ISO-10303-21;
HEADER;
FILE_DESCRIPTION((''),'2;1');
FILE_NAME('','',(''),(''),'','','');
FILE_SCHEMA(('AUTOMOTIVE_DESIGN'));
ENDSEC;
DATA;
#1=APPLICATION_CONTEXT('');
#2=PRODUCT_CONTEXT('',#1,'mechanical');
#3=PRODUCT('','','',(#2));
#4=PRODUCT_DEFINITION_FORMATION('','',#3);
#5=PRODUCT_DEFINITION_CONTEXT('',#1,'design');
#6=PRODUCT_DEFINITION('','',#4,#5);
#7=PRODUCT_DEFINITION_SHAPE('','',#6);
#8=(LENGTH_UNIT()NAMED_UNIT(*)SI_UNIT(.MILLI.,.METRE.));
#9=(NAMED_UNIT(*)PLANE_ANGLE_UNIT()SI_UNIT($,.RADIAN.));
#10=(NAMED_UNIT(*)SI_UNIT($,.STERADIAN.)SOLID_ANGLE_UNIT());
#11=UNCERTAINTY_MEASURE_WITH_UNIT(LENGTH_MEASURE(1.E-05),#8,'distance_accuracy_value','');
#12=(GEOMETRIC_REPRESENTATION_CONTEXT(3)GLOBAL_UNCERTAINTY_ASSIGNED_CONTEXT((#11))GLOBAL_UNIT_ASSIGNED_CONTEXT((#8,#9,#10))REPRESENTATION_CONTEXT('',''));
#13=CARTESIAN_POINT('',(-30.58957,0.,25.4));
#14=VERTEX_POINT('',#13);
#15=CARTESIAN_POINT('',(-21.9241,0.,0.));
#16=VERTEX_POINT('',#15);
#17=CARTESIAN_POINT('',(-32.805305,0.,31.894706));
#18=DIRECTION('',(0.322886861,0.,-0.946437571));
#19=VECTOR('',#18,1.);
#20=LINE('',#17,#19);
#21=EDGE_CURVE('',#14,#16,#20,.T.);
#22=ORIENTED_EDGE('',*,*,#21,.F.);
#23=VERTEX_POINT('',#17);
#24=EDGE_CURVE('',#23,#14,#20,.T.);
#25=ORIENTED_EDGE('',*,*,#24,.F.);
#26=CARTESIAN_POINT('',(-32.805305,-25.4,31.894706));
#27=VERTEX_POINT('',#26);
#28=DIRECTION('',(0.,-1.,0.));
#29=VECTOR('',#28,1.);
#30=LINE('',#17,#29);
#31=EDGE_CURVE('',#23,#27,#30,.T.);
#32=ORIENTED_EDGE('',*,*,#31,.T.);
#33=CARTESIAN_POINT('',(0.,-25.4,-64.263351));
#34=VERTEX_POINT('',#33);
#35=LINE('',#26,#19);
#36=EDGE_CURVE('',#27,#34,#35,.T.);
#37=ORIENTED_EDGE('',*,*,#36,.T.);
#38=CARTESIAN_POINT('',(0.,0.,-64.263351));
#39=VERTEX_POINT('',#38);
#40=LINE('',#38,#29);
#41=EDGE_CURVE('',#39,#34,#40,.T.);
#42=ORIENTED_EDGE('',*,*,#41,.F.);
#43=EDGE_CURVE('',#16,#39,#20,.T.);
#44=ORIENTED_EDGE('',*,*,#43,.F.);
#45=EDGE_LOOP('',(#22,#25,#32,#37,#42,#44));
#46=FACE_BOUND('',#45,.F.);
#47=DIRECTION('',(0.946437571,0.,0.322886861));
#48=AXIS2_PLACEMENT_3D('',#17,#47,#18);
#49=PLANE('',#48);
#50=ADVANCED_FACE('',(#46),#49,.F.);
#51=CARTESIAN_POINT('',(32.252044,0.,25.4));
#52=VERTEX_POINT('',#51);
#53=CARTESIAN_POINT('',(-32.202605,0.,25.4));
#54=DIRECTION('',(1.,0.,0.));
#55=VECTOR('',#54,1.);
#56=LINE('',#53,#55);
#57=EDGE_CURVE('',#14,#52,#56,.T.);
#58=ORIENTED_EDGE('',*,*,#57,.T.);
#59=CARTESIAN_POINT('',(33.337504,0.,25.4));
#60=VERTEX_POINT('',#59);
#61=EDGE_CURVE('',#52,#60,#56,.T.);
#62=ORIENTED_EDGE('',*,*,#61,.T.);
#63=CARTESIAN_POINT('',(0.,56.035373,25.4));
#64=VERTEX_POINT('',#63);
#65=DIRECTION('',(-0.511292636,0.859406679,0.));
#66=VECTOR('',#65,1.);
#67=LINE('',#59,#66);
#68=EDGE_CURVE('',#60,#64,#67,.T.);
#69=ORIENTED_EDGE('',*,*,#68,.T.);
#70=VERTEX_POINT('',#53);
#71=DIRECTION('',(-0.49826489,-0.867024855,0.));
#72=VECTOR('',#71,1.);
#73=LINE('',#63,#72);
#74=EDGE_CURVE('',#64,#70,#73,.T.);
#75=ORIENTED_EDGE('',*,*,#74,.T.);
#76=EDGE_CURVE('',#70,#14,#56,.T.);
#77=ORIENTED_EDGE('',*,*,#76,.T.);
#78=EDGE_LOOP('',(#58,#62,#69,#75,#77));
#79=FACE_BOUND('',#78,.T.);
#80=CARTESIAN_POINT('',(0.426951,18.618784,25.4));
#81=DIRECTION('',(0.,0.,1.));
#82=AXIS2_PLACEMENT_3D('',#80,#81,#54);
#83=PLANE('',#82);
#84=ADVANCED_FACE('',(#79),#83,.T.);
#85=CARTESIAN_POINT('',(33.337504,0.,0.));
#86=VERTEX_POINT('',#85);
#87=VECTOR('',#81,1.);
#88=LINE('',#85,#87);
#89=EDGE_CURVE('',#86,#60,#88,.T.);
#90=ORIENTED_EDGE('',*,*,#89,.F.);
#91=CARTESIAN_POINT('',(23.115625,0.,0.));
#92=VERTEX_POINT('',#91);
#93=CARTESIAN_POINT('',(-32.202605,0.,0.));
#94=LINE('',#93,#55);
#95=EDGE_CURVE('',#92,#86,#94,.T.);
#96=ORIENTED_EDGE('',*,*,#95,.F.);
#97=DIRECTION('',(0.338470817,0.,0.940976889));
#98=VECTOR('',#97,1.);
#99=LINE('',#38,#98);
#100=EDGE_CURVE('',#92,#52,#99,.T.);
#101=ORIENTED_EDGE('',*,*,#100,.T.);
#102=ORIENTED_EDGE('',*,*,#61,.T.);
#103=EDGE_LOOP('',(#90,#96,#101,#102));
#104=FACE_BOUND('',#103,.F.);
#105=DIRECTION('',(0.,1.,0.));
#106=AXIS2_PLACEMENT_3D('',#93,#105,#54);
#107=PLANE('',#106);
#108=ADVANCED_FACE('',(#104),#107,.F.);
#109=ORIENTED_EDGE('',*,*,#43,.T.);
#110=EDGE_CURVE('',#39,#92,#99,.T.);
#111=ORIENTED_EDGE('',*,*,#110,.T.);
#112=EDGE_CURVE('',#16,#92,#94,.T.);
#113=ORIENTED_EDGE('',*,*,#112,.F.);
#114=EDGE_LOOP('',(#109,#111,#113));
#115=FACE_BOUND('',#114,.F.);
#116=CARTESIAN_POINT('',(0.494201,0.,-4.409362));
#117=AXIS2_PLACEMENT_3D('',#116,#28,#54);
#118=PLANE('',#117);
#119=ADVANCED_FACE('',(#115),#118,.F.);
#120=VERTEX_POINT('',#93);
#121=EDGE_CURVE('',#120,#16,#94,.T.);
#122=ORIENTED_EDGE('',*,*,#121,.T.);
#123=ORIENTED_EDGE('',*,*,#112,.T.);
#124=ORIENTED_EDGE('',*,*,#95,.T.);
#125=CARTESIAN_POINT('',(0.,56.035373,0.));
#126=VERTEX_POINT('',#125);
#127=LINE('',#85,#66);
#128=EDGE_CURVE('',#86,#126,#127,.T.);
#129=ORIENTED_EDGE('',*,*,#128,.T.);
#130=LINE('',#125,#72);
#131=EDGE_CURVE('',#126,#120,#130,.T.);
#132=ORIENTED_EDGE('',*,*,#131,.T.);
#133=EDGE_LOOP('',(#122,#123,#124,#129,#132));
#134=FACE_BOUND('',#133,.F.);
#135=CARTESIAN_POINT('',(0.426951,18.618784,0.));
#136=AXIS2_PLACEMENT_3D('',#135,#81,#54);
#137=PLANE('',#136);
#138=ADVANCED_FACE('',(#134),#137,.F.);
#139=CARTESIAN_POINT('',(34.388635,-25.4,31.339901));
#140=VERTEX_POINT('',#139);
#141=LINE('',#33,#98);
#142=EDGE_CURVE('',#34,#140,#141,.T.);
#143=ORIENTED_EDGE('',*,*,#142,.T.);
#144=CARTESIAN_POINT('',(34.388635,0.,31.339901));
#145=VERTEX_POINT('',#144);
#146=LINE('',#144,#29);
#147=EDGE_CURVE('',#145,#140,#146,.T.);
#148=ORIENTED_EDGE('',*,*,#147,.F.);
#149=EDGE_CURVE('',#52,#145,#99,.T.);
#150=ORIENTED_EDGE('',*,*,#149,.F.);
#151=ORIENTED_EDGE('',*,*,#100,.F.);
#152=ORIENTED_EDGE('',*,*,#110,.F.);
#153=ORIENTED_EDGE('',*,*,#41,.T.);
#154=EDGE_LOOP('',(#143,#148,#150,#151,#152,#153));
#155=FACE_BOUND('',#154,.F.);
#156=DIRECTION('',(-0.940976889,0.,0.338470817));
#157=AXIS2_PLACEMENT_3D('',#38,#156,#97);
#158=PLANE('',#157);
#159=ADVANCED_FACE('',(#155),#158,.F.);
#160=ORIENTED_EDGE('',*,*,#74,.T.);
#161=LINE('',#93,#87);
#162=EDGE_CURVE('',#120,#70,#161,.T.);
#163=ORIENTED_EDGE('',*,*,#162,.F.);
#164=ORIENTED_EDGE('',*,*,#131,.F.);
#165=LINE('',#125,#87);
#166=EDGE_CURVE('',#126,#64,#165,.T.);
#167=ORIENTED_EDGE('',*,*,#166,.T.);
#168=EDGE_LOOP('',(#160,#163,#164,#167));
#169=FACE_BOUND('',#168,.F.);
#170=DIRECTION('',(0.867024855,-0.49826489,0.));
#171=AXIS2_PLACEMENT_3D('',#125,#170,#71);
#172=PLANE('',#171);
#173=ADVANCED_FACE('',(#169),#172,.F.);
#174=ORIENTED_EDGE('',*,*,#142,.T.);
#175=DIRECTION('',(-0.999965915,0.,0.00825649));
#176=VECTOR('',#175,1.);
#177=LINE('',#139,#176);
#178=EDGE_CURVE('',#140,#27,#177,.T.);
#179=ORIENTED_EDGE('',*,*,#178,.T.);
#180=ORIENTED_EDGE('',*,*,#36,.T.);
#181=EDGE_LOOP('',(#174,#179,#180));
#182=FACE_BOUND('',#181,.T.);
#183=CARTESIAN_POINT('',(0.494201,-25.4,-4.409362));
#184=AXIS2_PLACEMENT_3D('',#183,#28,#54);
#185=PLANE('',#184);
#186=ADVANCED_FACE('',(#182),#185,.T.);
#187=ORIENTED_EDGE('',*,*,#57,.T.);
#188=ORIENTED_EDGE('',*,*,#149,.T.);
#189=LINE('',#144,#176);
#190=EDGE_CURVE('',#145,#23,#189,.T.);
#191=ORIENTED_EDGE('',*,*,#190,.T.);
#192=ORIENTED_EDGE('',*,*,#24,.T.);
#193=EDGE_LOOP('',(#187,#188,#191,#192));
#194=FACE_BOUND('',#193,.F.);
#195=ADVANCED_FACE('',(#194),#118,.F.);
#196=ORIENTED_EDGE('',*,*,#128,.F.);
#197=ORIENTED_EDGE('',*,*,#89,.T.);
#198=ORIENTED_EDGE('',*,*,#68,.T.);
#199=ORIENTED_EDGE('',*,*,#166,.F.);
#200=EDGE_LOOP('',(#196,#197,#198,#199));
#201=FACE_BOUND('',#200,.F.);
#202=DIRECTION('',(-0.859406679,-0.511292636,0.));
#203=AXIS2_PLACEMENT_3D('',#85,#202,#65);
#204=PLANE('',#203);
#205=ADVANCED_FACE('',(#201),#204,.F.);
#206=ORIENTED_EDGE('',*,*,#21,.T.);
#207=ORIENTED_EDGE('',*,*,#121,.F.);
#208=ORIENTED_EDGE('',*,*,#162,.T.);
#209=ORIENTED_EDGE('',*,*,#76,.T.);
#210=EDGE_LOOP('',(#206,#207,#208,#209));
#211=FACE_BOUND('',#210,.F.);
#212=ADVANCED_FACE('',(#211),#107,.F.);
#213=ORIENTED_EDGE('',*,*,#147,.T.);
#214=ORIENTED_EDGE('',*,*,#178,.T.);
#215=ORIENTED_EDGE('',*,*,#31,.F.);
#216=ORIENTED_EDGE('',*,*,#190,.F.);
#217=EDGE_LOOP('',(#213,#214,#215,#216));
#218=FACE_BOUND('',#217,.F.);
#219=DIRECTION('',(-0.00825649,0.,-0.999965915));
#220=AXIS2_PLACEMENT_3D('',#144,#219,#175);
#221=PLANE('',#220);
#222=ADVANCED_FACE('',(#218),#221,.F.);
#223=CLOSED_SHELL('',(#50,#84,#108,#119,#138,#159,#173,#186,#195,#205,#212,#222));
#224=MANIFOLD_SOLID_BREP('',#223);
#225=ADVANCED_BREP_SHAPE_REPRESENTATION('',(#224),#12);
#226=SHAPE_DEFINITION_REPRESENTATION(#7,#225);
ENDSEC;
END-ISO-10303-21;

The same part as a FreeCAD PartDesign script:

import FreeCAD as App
import Part
import Sketcher
from FreeCAD import Vector
Q = App.Units.Quantity


def add_polygon(sketch, points):
    """Adds a closed chain of lines whose ends are joined by coincident constraints."""
    first, n = sketch.GeometryCount, len(points)
    for a, b in zip(points, points[1:] + points[:1]):
        sketch.addGeometry(Part.LineSegment(App.Vector(*a, 0), App.Vector(*b, 0)), False)
    for i in range(n):
        sketch.addConstraint(Sketcher.Constraint("Coincident", first + i, 2, first + (i + 1) % n, 1))

doc = App.newDocument("Part")
body = doc.addObject("PartDesign::Body", "Body")

# Sketch on XZ plane
sketch1 = doc.addObject("Sketcher::SketchObject", "Sketch")
body.addObject(sketch1)
sketch1.AttachmentSupport = (doc.XZ_Plane, [""])
sketch1.MapMode = "FlatFace"
add_polygon(sketch1, [(34, 31), (-33, 32), (0, -64)])  # lines 0-2
sketch1.addConstraint(Sketcher.Constraint("PointOnObject", 1, 2, -2))
sketch1.addConstraint(Sketcher.Constraint("Equal", 1, 2))
sketch1.addConstraint(Sketcher.Constraint("Distance", 1, Q("4 in")))
sketch1.addConstraint(Sketcher.Constraint("DistanceY", -1, 1, 2, 2, Q("31.339901 mm")))
sketch1.addConstraint(Sketcher.Constraint("Distance", 0, Q("67.19623 mm")))
sketch1.addConstraint(Sketcher.Constraint("DistanceY", 1, 2, -1, 1, Q("64.263351 mm")))
pad1 = doc.addObject("PartDesign::Pad", "Pad")
body.addObject(pad1)
pad1.Profile = sketch1
pad1.Length = Q("1 in")

# Sketch on XY plane
sketch2 = doc.addObject("Sketcher::SketchObject", "Sketch001")
body.addObject(sketch2)
sketch2.AttachmentSupport = (doc.XY_Plane, [""])
sketch2.MapMode = "FlatFace"
add_polygon(sketch2, [(0, 56), (-32, 0), (33, 0)])  # lines 0-2
sketch2.addConstraint(Sketcher.Constraint("Horizontal", 1))
sketch2.addConstraint(Sketcher.Constraint("PointOnObject", 0, 2, -1))
sketch2.addConstraint(Sketcher.Constraint("PointOnObject", 2, 2, -2))
sketch2.addConstraint(Sketcher.Constraint("DistanceX", -1, 1, 1, 2, Q("1.3125002 in")))
sketch2.addConstraint(Sketcher.Constraint("DistanceX", 1, 1, 1, 2, Q("65.540109 mm")))
sketch2.addConstraint(Sketcher.Constraint("Distance", 0, Q("64.629489 mm")))
pad2 = doc.addObject("PartDesign::Pad", "Pad001")
body.addObject(pad2)
pad2.Profile = sketch2
pad2.Length = Q("1 in")

doc.recompute()
